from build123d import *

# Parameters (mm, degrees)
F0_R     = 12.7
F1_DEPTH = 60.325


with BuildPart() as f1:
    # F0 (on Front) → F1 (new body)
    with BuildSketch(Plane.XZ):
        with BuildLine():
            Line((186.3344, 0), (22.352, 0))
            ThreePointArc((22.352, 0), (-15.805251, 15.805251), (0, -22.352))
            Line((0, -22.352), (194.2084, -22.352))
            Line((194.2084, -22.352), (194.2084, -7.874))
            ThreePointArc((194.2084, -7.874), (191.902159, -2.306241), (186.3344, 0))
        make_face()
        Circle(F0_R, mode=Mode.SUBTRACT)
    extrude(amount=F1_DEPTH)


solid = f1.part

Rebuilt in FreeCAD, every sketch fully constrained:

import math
import FreeCAD as App
import Part
import Sketcher
from FreeCAD import Vector
Q = App.Units.Quantity

doc = App.newDocument("Part")
body = doc.addObject("PartDesign::Body", "Body")

sketch1 = doc.addObject("Sketcher::SketchObject", "Sketch")
body.addObject(sketch1)
sketch1.AttachmentSupport = (doc.XZ_Plane, [""])
sketch1.MapMode = "FlatFace"
sketch1.addGeometry([
    Part.LineSegment(Vector(186.3344, 0, 0), Vector(22.352, 0, 0)),
    Part.ArcOfCircle(Part.Circle(Vector(0, 0, 0), Vector(0, 0, 1), 22.352), math.radians(0), math.radians(270)),
    Part.LineSegment(Vector(0, -22.352, 0), Vector(194.2084, -22.352, 0)),
    Part.LineSegment(Vector(194.2084, -22.352, 0), Vector(194.2084, -7.874, 0)),
    Part.ArcOfCircle(Part.Circle(Vector(186.334401, -7.873999, 0), Vector(0, 0, 1), 7.873999), math.radians(-0.000005), math.radians(90.000005)),
    Part.Circle(Vector(0, 0, 0), Vector(0, 0, 1), 12.7),
], False)
sketch1.addConstraint([
    Sketcher.Constraint("Coincident", 0, 2, 1, 1),
    Sketcher.Constraint("Tangent", 1, 2, 2, 1),
    Sketcher.Constraint("Coincident", 2, 2, 3, 1),
    Sketcher.Constraint("Tangent", 3, 2, 4, 1),
    Sketcher.Constraint("Tangent", 4, 2, 0, 1),
    Sketcher.Constraint("Horizontal", 0),
    Sketcher.Constraint("Horizontal", 2),
    Sketcher.Constraint("Vertical", 3),
    Sketcher.Constraint("Coincident", 1, 3, -1, 1),
    Sketcher.Constraint("Coincident", 5, 3, -1, 1),
    Sketcher.Constraint("PointOnObject", 0, 2, -1),
    Sketcher.Constraint("Diameter", 5, Q("1 in")),
    Sketcher.Constraint("Radius", 1, Q("0.88 in")),
    Sketcher.Constraint("Radius", 4, Q("0.31 in")),
    Sketcher.Constraint("DistanceX", 0, 2, 0, 1, Q("6.456 in")),
])
pad1 = doc.addObject("PartDesign::Pad", "Pad")
body.addObject(pad1)
pad1.Profile = sketch1
pad1.Length = Q("2.375 in")

doc.recompute()
